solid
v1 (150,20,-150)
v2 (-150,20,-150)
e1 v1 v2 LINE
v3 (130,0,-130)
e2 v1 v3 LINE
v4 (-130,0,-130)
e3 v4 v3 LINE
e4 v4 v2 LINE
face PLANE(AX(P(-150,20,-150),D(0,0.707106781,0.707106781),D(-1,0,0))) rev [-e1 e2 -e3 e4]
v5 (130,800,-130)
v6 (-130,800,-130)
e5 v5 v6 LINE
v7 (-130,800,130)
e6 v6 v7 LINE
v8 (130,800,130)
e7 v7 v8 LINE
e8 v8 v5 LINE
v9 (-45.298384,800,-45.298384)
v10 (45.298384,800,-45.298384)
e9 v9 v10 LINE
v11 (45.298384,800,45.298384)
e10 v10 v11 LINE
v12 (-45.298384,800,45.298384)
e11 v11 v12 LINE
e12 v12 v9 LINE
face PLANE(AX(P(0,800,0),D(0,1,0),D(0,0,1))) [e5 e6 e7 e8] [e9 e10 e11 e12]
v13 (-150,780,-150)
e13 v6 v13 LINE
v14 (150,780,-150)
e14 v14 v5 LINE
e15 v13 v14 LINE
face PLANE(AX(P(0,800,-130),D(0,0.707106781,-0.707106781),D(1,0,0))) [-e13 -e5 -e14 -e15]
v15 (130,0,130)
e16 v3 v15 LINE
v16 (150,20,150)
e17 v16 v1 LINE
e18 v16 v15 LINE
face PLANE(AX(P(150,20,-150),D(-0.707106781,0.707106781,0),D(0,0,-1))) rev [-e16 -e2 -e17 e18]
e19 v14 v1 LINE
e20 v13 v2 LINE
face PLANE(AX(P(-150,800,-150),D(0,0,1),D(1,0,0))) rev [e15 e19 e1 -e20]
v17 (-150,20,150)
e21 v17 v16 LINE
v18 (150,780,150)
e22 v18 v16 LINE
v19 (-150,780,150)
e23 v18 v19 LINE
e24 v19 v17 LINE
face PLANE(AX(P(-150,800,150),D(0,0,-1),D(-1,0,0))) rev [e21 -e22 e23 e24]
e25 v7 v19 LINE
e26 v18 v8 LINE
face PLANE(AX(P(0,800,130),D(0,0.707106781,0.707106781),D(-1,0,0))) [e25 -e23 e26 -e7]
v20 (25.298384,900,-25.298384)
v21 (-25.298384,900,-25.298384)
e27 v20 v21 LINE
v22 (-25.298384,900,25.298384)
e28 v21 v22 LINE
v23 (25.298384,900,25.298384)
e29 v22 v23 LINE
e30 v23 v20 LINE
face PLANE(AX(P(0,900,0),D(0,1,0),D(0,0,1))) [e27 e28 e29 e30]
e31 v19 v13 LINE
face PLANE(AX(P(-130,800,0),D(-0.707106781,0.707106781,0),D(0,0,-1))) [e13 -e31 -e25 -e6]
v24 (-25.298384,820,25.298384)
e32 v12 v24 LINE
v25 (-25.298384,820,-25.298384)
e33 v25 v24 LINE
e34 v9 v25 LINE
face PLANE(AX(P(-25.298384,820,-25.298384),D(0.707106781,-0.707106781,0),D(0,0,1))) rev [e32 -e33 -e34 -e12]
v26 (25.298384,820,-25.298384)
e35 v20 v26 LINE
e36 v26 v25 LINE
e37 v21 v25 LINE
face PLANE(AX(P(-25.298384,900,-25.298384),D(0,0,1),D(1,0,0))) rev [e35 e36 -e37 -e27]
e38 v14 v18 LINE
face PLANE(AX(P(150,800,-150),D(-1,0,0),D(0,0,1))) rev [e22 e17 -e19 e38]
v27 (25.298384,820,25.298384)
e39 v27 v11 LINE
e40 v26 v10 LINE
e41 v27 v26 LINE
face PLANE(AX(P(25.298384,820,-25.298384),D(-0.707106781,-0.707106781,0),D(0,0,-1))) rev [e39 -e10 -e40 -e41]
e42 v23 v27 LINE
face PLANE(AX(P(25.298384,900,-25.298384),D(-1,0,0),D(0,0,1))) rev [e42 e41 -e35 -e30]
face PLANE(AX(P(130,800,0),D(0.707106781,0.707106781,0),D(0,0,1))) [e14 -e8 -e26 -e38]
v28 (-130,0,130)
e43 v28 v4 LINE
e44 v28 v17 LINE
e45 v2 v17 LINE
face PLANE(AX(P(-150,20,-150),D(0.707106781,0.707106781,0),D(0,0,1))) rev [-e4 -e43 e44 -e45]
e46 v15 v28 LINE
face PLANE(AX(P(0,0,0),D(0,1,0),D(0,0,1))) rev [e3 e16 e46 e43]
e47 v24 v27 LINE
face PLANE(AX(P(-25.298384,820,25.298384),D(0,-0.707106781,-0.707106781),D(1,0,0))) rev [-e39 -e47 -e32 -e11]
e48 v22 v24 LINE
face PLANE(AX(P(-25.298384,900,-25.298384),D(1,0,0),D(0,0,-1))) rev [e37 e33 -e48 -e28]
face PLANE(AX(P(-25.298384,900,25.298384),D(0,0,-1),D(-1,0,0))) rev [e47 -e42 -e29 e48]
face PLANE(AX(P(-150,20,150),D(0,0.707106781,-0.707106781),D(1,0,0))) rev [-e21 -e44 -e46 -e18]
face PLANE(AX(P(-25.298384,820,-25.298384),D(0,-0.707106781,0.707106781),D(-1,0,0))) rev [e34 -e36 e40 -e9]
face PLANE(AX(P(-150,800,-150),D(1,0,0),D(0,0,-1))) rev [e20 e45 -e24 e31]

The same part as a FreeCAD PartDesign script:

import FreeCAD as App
import Part
import Sketcher

V = App.Vector
Q = App.Units.Quantity


def edges_at(feature, points):
    """Names of the edges that pass closest to the given points."""
    edges = feature.Shape.Edges
    near = lambda p: min(range(len(edges)), key=lambda i: edges[i].distToShape(Part.Vertex(*p))[0])
    return sorted({f"Edge{near(p) + 1}" for p in points})

doc = App.newDocument("Part")
params = doc.addObject("Spreadsheet::Sheet", "Params")
for row, (alias, value) in enumerate([
    ("sketch1_width", "300 mm"),
    ("pad1_length", "800 mm"),
    ("pad2_length", "100 mm"),
    ("chamfer_size", "20 mm"),
], start=1):
    params.set(f"A{row}", alias)
    params.set(f"B{row}", "=" + value)
    params.setAlias(f"B{row}", alias)

body = doc.addObject("PartDesign::Body", "Body")

# Sketch on XZ plane
sketch1 = doc.addObject("Sketcher::SketchObject", "Sketch")
body.addObject(sketch1)
sketch1.AttachmentSupport = (doc.XZ_Plane, [""])
sketch1.MapMode = "FlatFace"
sketch1.addGeometry([
    Part.LineSegment(V(-150, -150, 0), V(-150, 150, 0)),
    Part.LineSegment(V(-150, 150, 0), V(150, 150, 0)),
    Part.LineSegment(V(150, 150, 0), V(150, -150, 0)),
    Part.LineSegment(V(150, -150, 0), V(-150, -150, 0)),
], False)
sketch1.addConstraint([
    Sketcher.Constraint("Coincident", 0, 2, 1, 1),
    Sketcher.Constraint("Coincident", 1, 2, 2, 1),
    Sketcher.Constraint("Coincident", 2, 2, 3, 1),
    Sketcher.Constraint("Coincident", 3, 2, 0, 1),
    Sketcher.Constraint("Vertical", 0),
    Sketcher.Constraint("Horizontal", 1),
    Sketcher.Constraint("Vertical", 2),
    Sketcher.Constraint("Horizontal", 3),
    Sketcher.Constraint("Symmetric", 0, 2, 2, 2, -1, 1),
    Sketcher.Constraint("Equal", 3, 0),
    Sketcher.Constraint("DistanceX", 1, 1, 1, 2, Q("300 mm")),
])
sketch1.setExpression("Constraints[10]", "Params.sketch1_width")
pad1 = doc.addObject("PartDesign::Pad", "Pad")
body.addObject(pad1)
pad1.Profile = sketch1
pad1.setExpression("Length", "Params.pad1_length")
pad1.Reversed = True

# Sketch on XZ plane
sketch2 = doc.addObject("Sketcher::SketchObject", "Sketch001")
body.addObject(sketch2)
sketch2.AttachmentSupport = (doc.XZ_Plane, [""])
sketch2.MapMode = "FlatFace"
sketch2.AttachmentOffset = App.Placement(V(0, 0, -800), App.Rotation())
sketch2.addGeometry([
    Part.LineSegment(V(-25, -25, 0), V(-25, 25, 0)),
    Part.LineSegment(V(-25, 25, 0), V(25, 25, 0)),
    Part.LineSegment(V(25, 25, 0), V(25, -25, 0)),
    Part.LineSegment(V(25, -25, 0), V(-25, -25, 0)),
], False)
sketch2.addConstraint([
    Sketcher.Constraint("Coincident", 0, 2, 1, 1),
    Sketcher.Constraint("Coincident", 1, 2, 2, 1),
    Sketcher.Constraint("Coincident", 2, 2, 3, 1),
    Sketcher.Constraint("Coincident", 3, 2, 0, 1),
    Sketcher.Constraint("Vertical", 0),
    Sketcher.Constraint("Horizontal", 1),
    Sketcher.Constraint("Vertical", 2),
    Sketcher.Constraint("Horizontal", 3),
    Sketcher.Constraint("Symmetric", 0, 2, 2, 2, -1, 1),
    Sketcher.Constraint("Equal", 3, 0),
    Sketcher.Constraint("DistanceX", 1, 1, 1, 2, Q("50.596768 mm")),
])
pad2 = doc.addObject("PartDesign::Pad", "Pad001")
body.addObject(pad2)
pad2.Profile = sketch2
pad2.setExpression("Length", "Params.pad2_length")
pad2.Reversed = True
doc.recompute()

chamfer = doc.addObject("PartDesign::Chamfer", "Chamfer")
body.addObject(chamfer)
chamfer.Base = (pad2, edges_at(pad2, [
    (-150, 800, 0),
    (25.298, 800, 0),
    (0, 800, -25.298),
    (-25.298, 800, 0),
    (0, 800, 150),
    (0, 800, 25.298),
    (150, 800, 0),
    (0, 0, 150),
    (-150, 0, 0),
    (0, 0, -150),
    (150, 0, 0),
    (0, 800, -150),
]))
chamfer.setExpression("Size", "Params.chamfer_size")

doc.recompute()
